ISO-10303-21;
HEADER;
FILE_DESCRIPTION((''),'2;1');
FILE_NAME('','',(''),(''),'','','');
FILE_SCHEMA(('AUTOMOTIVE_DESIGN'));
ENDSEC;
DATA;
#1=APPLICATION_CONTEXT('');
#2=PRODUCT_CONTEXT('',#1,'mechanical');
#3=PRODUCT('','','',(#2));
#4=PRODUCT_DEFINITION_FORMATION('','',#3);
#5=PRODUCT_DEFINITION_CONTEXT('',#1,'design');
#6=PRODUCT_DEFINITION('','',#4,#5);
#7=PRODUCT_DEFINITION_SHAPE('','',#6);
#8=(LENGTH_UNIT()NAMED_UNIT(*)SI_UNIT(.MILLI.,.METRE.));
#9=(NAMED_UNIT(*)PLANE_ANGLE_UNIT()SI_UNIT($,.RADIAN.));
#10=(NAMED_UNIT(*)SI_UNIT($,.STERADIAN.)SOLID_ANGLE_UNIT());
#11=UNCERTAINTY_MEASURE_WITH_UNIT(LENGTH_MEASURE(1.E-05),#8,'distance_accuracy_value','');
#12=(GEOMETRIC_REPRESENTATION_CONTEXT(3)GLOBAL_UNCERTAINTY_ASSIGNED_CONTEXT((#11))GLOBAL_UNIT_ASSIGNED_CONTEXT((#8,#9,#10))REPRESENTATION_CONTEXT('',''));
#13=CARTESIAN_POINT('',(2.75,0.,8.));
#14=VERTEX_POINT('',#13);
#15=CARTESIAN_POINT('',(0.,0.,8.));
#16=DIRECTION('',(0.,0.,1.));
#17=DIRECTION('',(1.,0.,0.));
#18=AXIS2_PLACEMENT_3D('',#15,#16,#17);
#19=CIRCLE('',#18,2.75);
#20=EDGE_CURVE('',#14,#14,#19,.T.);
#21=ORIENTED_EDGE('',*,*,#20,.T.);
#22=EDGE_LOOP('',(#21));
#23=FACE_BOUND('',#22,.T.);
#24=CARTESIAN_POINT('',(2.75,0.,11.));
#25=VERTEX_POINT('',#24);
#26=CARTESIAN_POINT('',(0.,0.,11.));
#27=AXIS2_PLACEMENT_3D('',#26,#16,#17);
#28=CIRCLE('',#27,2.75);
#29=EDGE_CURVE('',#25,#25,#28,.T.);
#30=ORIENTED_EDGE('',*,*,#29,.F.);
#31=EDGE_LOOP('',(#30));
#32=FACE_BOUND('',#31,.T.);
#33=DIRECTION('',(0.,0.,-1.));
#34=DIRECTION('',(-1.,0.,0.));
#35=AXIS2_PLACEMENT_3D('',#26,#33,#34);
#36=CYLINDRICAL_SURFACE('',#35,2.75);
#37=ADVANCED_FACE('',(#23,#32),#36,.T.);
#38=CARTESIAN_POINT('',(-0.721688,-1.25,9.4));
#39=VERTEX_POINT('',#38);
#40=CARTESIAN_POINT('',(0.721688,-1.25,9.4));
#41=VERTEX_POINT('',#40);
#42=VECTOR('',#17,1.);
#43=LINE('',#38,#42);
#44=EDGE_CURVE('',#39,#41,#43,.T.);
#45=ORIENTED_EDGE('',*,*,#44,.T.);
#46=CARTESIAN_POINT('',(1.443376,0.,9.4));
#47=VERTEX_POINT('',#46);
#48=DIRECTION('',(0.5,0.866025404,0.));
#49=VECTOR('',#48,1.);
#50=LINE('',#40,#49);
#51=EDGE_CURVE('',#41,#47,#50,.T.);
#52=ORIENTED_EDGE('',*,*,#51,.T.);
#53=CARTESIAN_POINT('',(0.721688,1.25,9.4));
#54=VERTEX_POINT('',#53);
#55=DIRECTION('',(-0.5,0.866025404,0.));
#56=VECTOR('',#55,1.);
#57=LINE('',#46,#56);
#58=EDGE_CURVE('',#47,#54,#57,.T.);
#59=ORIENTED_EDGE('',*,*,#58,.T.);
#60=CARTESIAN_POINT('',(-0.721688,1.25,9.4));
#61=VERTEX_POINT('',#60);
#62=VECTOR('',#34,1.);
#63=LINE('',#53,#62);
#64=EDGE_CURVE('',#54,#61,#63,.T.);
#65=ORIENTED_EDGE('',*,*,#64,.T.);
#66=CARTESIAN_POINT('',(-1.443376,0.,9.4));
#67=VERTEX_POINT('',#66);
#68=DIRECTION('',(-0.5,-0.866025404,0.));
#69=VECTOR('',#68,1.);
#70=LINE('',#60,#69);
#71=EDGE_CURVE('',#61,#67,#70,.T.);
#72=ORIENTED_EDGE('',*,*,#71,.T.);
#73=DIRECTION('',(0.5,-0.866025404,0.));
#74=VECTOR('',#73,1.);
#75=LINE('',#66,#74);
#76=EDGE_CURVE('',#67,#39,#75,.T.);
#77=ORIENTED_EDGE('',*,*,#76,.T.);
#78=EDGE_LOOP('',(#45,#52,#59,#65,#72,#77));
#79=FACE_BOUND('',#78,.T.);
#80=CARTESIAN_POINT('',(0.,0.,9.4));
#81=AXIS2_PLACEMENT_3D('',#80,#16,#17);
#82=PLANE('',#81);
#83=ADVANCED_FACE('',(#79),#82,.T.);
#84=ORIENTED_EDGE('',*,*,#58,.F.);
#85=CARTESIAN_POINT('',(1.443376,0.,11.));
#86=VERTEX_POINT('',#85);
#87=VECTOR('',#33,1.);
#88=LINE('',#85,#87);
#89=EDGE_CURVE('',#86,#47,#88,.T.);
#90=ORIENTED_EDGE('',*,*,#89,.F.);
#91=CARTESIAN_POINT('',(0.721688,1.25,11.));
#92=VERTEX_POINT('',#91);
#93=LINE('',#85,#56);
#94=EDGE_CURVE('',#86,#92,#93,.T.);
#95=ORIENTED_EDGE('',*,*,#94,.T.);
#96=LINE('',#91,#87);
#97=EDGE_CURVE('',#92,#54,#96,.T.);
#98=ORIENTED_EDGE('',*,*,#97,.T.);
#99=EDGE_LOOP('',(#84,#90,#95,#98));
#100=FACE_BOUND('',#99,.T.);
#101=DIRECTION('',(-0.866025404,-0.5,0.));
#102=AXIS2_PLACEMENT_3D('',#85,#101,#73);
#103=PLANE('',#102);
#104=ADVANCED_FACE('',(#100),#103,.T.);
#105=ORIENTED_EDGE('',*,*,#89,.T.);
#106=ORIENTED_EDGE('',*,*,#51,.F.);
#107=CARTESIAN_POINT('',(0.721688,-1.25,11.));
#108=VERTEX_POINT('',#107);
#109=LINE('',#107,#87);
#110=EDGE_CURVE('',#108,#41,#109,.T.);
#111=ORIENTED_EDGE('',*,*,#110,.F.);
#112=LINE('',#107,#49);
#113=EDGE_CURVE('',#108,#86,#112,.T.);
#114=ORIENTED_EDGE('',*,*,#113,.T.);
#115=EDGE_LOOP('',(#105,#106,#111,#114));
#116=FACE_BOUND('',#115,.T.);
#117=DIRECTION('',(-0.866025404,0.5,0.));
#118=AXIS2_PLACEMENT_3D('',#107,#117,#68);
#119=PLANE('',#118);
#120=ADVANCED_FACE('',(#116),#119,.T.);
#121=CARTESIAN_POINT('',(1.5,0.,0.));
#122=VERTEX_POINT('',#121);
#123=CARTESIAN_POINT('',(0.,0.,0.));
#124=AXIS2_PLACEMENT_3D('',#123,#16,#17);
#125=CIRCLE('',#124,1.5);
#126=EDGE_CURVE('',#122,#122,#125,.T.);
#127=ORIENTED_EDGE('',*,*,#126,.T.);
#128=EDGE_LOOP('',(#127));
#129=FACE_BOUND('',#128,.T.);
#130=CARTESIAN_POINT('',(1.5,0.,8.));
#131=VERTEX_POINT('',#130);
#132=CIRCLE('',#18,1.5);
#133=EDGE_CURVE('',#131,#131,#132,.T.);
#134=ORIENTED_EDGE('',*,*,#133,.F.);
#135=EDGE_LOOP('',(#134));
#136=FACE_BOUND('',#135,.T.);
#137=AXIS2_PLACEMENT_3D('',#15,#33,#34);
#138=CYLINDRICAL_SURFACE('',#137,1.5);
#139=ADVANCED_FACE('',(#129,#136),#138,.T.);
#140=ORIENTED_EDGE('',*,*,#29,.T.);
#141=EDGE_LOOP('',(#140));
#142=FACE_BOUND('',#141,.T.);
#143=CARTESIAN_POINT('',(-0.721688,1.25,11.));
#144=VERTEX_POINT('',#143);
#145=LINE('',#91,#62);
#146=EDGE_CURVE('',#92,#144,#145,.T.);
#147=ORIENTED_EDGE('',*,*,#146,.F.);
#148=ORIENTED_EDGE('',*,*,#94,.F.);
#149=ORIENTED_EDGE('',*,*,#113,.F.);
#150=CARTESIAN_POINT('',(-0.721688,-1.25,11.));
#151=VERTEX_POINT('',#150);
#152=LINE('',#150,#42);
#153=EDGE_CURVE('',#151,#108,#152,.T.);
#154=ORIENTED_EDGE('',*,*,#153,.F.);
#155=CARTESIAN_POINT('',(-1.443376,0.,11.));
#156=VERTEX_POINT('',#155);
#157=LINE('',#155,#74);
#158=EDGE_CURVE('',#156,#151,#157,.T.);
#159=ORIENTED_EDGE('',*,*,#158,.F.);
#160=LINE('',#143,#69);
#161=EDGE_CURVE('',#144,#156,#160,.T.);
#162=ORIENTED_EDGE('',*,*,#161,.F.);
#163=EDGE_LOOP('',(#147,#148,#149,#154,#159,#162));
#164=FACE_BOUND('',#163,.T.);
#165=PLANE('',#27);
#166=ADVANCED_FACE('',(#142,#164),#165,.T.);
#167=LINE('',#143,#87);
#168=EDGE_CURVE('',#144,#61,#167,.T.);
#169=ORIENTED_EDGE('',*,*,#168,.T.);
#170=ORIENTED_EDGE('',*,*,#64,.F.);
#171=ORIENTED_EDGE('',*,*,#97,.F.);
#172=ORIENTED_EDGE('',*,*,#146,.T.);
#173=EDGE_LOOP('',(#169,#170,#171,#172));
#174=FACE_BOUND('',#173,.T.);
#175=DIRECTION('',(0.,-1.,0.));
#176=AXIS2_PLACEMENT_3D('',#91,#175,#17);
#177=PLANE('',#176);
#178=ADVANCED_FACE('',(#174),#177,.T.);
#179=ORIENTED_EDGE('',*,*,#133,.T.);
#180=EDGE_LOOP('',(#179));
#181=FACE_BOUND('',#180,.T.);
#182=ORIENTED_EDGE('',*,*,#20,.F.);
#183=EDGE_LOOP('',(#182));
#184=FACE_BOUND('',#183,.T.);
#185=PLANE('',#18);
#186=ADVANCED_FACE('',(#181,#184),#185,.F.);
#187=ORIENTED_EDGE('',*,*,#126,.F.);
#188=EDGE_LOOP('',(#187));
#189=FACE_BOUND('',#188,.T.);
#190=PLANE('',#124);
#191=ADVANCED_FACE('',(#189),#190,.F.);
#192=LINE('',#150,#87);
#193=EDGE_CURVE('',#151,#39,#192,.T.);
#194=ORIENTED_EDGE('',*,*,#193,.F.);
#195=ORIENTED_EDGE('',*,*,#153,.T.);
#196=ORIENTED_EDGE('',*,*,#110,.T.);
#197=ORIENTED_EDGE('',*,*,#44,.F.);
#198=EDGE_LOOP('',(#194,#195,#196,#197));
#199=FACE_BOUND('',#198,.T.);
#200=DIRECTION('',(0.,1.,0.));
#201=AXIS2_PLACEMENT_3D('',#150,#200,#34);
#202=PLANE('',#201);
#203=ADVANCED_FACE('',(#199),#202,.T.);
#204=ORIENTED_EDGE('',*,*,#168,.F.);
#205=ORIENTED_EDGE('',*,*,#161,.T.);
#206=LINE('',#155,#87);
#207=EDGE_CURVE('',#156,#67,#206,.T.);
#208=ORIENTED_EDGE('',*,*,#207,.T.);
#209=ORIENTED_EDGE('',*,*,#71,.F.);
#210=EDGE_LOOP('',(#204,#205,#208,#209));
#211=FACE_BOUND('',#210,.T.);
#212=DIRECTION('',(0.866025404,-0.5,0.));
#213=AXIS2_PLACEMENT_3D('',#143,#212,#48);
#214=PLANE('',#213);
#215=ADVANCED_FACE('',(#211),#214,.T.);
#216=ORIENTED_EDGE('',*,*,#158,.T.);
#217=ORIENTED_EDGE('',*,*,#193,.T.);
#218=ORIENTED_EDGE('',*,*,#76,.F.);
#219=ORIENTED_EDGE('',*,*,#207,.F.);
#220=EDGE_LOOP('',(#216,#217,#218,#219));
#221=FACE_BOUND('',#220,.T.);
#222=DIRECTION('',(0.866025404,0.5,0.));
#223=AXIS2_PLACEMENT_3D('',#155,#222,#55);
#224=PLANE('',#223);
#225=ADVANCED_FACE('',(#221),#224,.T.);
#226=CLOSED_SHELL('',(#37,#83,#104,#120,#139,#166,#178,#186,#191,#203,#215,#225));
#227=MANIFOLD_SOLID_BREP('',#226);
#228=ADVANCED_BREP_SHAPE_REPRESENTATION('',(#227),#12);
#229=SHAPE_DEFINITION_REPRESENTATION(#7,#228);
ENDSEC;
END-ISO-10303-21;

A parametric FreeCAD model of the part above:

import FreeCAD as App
import Part
import Sketcher

V = App.Vector
Q = App.Units.Quantity


def add_polygon(sketch, points):
    """Adds a closed chain of lines whose ends are joined by coincident constraints."""
    first, n = sketch.GeometryCount, len(points)
    for a, b in zip(points, points[1:] + points[:1]):
        sketch.addGeometry(Part.LineSegment(App.Vector(*a, 0), App.Vector(*b, 0)), False)
    for i in range(n):
        sketch.addConstraint(Sketcher.Constraint("Coincident", first + i, 2, first + (i + 1) % n, 1))

doc = App.newDocument("Part")
body = doc.addObject("PartDesign::Body", "Body")

# Sketch on XY plane
sketch1 = body.newObject("Sketcher::SketchObject", "Sketch")
sketch1.AttachmentSupport = (doc.getObject("XY_Plane"), [""])
sketch1.MapMode = "FlatFace"
sketch1.addGeometry(Part.Circle(V(0, 0, 0), V(0, 0, 1), 1.5), False)
sketch1.addConstraint(Sketcher.Constraint("Coincident", 0, 3, -1, 1))
sketch1.addConstraint(Sketcher.Constraint("Diameter", 0, Q("3 mm")))
pad1 = body.newObject("PartDesign::Pad", "Pad")
pad1.Profile = sketch1
pad1.Length = 8

# Sketch on XY plane
sketch2 = body.newObject("Sketcher::SketchObject", "Sketch001")
sketch2.AttachmentSupport = (doc.getObject("XY_Plane"), [""])
sketch2.MapMode = "FlatFace"
sketch2.AttachmentOffset = App.Placement(V(0, 0, 8), App.Rotation())
sketch2.addGeometry(Part.Circle(V(0, 0, 0), V(0, 0, 1), 2.8), False)
sketch2.addConstraint(Sketcher.Constraint("Coincident", 0, 3, -1, 1))
sketch2.addConstraint(Sketcher.Constraint("Diameter", 0, Q("5.5 mm")))
pad2 = body.newObject("PartDesign::Pad", "Pad001")
pad2.Profile = sketch2
pad2.Length = 3

# Sketch on XY plane
sketch3 = body.newObject("Sketcher::SketchObject", "Sketch002")
sketch3.AttachmentSupport = (doc.getObject("XY_Plane"), [""])
sketch3.MapMode = "FlatFace"
sketch3.AttachmentOffset = App.Placement(V(0, 0, 9.4), App.Rotation())
add_polygon(sketch3, [(1.4, 0), (0.7, 1.2), (-0.7, 1.2), (-1.4, 0), (-0.7, -1.2), (0.7, -1.2)])  # lines 0-5
sketch3.addConstraint(Sketcher.Constraint("Horizontal", 1))
sketch3.addConstraint(Sketcher.Constraint("Horizontal", 4))
sketch3.addConstraint(Sketcher.Constraint("Symmetric", 0, 2, 3, 2, -1, 1))
sketch3.addConstraint(Sketcher.Constraint("Symmetric", 2, 2, 5, 2, -1, 1))
sketch3.addConstraint(Sketcher.Constraint("PointOnObject", 2, 2, -1))
sketch3.addConstraint(Sketcher.Constraint("Parallel", 2, 5))
sketch3.addConstraint(Sketcher.Constraint("Vertical", 1, 2, 3, 2))
sketch3.addConstraint(Sketcher.Constraint("Angle", 0, Q("120 deg")))
sketch3.addConstraint(Sketcher.Constraint("DistanceY", 3, 2, 1, 2, Q("2.5 mm")))
sketch3.addConstraint(Sketcher.Constraint("DistanceX", 1, 2, 1, 1, Q("1.443376 mm")))
pocket1 = body.newObject("PartDesign::Pocket", "Pocket")
pocket1.Profile = sketch3
pocket1.Length = 1.6
pocket1.Reversed = True

doc.recompute()
